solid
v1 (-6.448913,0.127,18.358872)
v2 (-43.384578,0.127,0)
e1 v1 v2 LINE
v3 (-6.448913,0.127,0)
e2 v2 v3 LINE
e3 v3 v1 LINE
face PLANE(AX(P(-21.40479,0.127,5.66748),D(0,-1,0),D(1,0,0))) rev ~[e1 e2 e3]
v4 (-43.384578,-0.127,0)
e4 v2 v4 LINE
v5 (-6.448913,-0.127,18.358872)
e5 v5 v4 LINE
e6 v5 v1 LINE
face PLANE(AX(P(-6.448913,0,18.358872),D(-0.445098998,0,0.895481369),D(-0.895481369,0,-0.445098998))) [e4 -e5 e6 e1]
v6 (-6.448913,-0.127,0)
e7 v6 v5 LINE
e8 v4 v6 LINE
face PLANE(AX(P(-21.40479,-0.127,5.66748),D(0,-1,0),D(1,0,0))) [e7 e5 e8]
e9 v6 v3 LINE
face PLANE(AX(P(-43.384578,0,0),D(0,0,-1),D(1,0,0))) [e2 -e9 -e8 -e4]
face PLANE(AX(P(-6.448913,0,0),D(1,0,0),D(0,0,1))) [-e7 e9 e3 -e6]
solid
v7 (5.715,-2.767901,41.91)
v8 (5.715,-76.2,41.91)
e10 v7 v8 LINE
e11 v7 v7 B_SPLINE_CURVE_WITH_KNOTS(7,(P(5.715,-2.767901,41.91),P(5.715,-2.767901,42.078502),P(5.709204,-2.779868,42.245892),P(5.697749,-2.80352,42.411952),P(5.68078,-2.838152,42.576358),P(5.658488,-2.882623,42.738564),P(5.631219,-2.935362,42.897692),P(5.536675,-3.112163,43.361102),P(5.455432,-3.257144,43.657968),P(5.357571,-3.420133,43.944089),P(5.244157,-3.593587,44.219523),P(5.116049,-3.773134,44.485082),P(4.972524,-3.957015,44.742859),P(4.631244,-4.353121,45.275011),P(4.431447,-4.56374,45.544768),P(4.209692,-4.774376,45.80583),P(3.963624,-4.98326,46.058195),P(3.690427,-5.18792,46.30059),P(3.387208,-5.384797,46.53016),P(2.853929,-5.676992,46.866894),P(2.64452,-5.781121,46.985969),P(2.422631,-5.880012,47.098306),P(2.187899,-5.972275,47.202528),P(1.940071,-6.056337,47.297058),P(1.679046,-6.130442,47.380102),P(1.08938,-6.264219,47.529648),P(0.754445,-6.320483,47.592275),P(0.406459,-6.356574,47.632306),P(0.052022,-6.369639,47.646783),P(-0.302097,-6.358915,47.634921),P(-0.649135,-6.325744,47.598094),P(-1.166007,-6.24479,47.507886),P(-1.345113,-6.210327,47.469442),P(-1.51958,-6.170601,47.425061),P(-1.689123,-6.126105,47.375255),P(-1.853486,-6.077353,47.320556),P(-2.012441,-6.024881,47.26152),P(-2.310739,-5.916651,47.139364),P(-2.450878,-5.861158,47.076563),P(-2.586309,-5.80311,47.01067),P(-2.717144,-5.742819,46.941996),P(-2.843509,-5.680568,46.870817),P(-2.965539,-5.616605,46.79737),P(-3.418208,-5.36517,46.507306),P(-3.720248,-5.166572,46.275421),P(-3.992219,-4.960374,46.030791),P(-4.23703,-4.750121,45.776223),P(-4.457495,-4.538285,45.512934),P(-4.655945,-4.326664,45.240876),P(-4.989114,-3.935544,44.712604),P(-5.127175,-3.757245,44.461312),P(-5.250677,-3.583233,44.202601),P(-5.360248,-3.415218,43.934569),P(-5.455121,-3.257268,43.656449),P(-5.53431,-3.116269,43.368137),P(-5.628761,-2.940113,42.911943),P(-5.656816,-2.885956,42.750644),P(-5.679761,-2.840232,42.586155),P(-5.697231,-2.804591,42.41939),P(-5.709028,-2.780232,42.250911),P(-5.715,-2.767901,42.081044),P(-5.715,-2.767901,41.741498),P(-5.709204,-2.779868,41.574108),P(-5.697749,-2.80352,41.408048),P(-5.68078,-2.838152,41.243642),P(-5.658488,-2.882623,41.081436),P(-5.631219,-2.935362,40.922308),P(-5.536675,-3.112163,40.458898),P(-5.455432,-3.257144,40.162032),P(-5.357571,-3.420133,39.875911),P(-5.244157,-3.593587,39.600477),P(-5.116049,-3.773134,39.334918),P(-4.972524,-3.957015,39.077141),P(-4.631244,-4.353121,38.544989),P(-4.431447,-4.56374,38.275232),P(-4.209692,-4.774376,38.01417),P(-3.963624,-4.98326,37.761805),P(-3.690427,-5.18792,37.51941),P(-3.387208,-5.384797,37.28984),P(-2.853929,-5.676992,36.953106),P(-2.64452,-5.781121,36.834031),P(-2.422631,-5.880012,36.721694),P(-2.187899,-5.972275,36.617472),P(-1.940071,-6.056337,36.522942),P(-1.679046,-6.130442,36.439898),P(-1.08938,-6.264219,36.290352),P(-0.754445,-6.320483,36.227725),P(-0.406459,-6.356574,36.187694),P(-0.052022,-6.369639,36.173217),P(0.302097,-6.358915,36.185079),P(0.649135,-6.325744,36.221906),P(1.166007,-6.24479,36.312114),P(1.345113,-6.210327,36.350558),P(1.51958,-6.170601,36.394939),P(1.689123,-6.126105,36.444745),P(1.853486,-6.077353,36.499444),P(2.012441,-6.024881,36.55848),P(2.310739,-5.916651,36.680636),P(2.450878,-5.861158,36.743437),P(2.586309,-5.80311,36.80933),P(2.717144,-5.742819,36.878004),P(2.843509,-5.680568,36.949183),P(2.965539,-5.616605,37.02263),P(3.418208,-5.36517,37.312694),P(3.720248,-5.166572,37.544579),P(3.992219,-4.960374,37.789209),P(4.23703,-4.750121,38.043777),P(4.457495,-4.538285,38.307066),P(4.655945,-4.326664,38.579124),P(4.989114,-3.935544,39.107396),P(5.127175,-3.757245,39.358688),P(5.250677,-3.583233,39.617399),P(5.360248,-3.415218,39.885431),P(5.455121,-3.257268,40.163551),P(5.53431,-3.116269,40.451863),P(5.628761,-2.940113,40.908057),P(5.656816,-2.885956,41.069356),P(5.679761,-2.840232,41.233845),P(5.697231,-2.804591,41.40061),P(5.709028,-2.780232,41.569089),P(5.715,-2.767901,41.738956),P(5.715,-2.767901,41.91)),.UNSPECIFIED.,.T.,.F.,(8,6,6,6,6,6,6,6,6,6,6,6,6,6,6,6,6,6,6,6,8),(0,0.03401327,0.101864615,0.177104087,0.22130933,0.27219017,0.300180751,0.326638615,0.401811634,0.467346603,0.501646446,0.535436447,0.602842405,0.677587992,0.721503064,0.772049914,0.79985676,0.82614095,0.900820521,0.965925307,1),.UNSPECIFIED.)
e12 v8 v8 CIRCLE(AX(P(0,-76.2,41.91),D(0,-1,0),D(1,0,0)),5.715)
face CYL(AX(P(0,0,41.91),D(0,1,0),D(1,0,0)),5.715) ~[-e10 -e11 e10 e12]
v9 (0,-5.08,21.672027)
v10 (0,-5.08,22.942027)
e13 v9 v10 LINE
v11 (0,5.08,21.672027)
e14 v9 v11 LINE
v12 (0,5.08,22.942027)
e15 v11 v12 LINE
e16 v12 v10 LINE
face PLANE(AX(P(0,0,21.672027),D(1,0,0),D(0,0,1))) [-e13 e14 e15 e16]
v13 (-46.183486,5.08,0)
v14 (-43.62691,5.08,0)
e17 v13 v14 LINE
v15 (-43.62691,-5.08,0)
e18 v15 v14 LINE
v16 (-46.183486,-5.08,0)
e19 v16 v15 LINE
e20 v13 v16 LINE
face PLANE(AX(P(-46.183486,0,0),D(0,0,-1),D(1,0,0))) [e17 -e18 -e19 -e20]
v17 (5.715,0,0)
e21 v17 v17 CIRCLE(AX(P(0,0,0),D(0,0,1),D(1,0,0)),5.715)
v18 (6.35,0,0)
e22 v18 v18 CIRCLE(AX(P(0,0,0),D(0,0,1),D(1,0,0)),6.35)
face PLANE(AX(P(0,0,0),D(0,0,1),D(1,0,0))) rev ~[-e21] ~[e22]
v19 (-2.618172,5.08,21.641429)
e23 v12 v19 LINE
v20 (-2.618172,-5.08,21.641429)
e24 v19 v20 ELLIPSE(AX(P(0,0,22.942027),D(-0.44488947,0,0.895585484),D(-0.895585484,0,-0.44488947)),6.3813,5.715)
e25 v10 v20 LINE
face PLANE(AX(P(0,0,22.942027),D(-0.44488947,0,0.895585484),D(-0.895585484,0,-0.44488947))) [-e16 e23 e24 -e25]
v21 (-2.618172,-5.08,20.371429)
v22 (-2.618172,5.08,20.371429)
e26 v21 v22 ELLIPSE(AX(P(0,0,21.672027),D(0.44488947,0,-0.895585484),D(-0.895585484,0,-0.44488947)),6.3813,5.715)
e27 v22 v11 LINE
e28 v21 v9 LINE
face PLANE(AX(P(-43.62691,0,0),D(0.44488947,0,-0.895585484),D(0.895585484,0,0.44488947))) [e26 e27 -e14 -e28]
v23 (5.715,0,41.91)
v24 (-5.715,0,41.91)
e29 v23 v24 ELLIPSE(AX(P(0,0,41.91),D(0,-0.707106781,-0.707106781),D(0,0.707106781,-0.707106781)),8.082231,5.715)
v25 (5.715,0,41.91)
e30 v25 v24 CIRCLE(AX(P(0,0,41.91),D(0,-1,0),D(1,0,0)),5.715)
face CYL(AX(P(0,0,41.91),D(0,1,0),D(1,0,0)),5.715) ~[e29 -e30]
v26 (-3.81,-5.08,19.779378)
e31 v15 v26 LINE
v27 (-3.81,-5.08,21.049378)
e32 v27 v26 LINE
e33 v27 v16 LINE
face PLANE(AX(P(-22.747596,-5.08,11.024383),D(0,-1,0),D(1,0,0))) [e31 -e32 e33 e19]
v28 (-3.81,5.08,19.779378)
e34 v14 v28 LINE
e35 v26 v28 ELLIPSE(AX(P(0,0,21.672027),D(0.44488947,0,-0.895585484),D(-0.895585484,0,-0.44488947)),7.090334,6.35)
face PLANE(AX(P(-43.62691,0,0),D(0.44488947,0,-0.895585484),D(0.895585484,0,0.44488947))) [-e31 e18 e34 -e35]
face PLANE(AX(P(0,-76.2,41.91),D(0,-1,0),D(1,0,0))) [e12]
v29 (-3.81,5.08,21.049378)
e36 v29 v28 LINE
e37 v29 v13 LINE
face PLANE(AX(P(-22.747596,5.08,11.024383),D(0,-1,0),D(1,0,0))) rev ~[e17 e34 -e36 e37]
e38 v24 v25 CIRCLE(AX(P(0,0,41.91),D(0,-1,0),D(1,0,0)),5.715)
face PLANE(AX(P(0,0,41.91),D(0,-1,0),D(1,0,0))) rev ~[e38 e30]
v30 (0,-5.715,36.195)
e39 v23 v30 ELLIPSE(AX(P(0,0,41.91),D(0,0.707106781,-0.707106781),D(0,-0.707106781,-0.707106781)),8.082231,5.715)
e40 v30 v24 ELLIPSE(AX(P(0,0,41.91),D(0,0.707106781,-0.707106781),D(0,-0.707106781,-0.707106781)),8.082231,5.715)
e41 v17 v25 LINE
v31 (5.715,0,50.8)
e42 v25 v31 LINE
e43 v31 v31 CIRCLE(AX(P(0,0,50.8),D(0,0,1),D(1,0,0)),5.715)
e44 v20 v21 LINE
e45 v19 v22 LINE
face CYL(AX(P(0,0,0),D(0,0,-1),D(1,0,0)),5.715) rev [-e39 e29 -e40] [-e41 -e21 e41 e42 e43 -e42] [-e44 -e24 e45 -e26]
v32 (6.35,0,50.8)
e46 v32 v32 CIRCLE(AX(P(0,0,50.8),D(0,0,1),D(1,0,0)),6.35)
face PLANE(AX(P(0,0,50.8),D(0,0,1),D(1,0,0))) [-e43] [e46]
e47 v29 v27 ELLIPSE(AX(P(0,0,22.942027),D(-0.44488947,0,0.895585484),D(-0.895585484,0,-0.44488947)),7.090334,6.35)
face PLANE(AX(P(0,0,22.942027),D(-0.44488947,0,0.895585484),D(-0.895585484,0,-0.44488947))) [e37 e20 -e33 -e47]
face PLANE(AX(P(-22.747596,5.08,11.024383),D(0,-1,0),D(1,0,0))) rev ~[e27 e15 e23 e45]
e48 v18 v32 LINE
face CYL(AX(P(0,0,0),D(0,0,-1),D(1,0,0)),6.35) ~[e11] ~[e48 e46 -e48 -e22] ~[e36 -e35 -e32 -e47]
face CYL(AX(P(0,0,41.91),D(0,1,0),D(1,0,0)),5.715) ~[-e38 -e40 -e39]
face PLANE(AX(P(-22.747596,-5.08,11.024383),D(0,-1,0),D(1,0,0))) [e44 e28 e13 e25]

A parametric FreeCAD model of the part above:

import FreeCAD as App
import Part
import Sketcher
from FreeCAD import Vector
Q = App.Units.Quantity

doc = App.newDocument("Part")
params = doc.addObject("Spreadsheet::Sheet", "Params")
for row, (alias, value) in enumerate([
    ("sketch1_diameter", "0.5 in"),
    ("sketch1_diameter2", "0.45 in"),
    ("pad1_length", "2 in"),
    ("sketch2_diameter", "0.45 in"),
    ("pad2_length", "3 in"),
    ("sketch3_height", "0.05 in"),
    ("pad3_length", "0.4 in"),
    ("pad4_length", "0.01 in"),
], start=1):
    params.set(f"A{row}", alias)
    params.set(f"B{row}", "=" + value)
    params.setAlias(f"B{row}", alias)

body = doc.addObject("PartDesign::Body", "Body")

# Sketch on XY plane
sketch1 = doc.addObject("Sketcher::SketchObject", "Sketch")
body.addObject(sketch1)
sketch1.AttachmentSupport = (doc.XY_Plane, [""])
sketch1.MapMode = "FlatFace"
sketch1.addGeometry(Part.Circle(Vector(0, 0, 0), Vector(0, 0, 1), 6), False)
sketch1.addGeometry(Part.Circle(Vector(0, 0, 0), Vector(0, 0, 1), 6), False)
sketch1.addConstraint(Sketcher.Constraint("Coincident", 0, 3, -1, 1))
sketch1.addConstraint(Sketcher.Constraint("Coincident", 1, 3, -1, 1))
sketch1.addConstraint(Sketcher.Constraint("Diameter", 0, Q("0.5 in")))
sketch1.addConstraint(Sketcher.Constraint("Diameter", 1, Q("0.45 in")))
sketch1.setExpression("Constraints[2]", "Params.sketch1_diameter")
sketch1.setExpression("Constraints[3]", "Params.sketch1_diameter2")
pad1 = doc.addObject("PartDesign::Pad", "Pad")
body.addObject(pad1)
pad1.Profile = sketch1
pad1.setExpression("Length", "Params.pad1_length")

# Sketch on XZ plane
sketch2 = doc.addObject("Sketcher::SketchObject", "Sketch001")
body.addObject(sketch2)
sketch2.AttachmentSupport = (doc.XZ_Plane, [""])
sketch2.MapMode = "FlatFace"
sketch2.addGeometry(Part.Circle(Vector(0, 42, 0), Vector(0, 0, 1), 6), False)
sketch2.addConstraint(Sketcher.Constraint("PointOnObject", 0, 3, -2))
sketch2.addConstraint(Sketcher.Constraint("Diameter", 0, Q("0.45 in")))
sketch2.addConstraint(Sketcher.Constraint("DistanceY", -1, 1, 0, 3, Q("1.65 in")))
sketch2.setExpression("Constraints[1]", "Params.sketch2_diameter")
pad2 = doc.addObject("PartDesign::Pad", "Pad001")
body.addObject(pad2)
pad2.Profile = sketch2
pad2.setExpression("Length", "Params.pad2_length")

# Sketch on XZ plane
sketch3 = doc.addObject("Sketcher::SketchObject", "Sketch002")
body.addObject(sketch3)
sketch3.AttachmentSupport = (doc.XZ_Plane, [""])
sketch3.MapMode = "FlatFace"
sketch3.addGeometry(Part.LineSegment(Vector(0, 21.7, 0), Vector(0, 22.9, 0)), False)
sketch3.addGeometry(Part.LineSegment(Vector(0, 22.9, 0), Vector(-46.2, 0, 0)), False)
sketch3.addGeometry(Part.LineSegment(Vector(-46.2, 0, 0), Vector(-43.6, 0, 0)), False)
sketch3.addGeometry(Part.LineSegment(Vector(-43.6, 0, 0), Vector(0, 21.7, 0)), False)
sketch3.addConstraint(Sketcher.Constraint("Coincident", 0, 2, 1, 1))
sketch3.addConstraint(Sketcher.Constraint("Coincident", 1, 2, 2, 1))
sketch3.addConstraint(Sketcher.Constraint("Coincident", 2, 2, 3, 1))
sketch3.addConstraint(Sketcher.Constraint("Coincident", 3, 2, 0, 1))
sketch3.addConstraint(Sketcher.Constraint("Vertical", 0))
sketch3.addConstraint(Sketcher.Constraint("Horizontal", 2))
sketch3.addConstraint(Sketcher.Constraint("PointOnObject", 0, 2, -2))
sketch3.addConstraint(Sketcher.Constraint("PointOnObject", 1, 2, -1))
sketch3.addConstraint(Sketcher.Constraint("Parallel", 1, 3))
sketch3.addConstraint(Sketcher.Constraint("DistanceY", 0, 1, 0, 2, Q("0.05 in")))
sketch3.addConstraint(Sketcher.Constraint("DistanceX", 2, 1, 2, 2, 2.556576))
sketch3.addConstraint(Sketcher.Constraint("DistanceX", 2, 2, -1, 1, 43.62691))
sketch3.setExpression("Constraints[9]", "Params.sketch3_height")
pad3 = doc.addObject("PartDesign::Pad", "Pad002")
body.addObject(pad3)
pad3.Profile = sketch3
pad3.setExpression("Length", "Params.pad3_length")
pad3.Midplane = True
body2 = doc.addObject("PartDesign::Body", "Body001")

# Sketch on XZ plane
sketch4 = doc.addObject("Sketcher::SketchObject", "Sketch003")
body2.addObject(sketch4)
sketch4.AttachmentSupport = (doc.getObject("XZ_Plane001"), [""])
sketch4.MapMode = "FlatFace"
sketch4.addGeometry(Part.LineSegment(Vector(-6, 18, 0), Vector(-43, 0, 0)), False)
sketch4.addGeometry(Part.LineSegment(Vector(-43, 0, 0), Vector(-6, 0, 0)), False)
sketch4.addGeometry(Part.LineSegment(Vector(-6, 0, 0), Vector(-6, 18, 0)), False)
sketch4.addConstraint(Sketcher.Constraint("Coincident", 0, 2, 1, 1))
sketch4.addConstraint(Sketcher.Constraint("Coincident", 1, 2, 2, 1))
sketch4.addConstraint(Sketcher.Constraint("Coincident", 2, 2, 0, 1))
sketch4.addConstraint(Sketcher.Constraint("Horizontal", 1))
sketch4.addConstraint(Sketcher.Constraint("Vertical", 2))
sketch4.addConstraint(Sketcher.Constraint("PointOnObject", 0, 2, -1))
sketch4.addConstraint(Sketcher.Constraint("DistanceY", 2, 1, 2, 2, 18.358872))
sketch4.addConstraint(Sketcher.Constraint("DistanceX", 1, 1, 1, 2, 36.935665))
sketch4.addConstraint(Sketcher.Constraint("DistanceX", 0, 2, -1, 1, 43.384578))
pad4 = doc.addObject("PartDesign::Pad", "Pad003")
body2.addObject(pad4)
pad4.Profile = sketch4
pad4.setExpression("Length", "Params.pad4_length")
pad4.Midplane = True

doc.recompute()
